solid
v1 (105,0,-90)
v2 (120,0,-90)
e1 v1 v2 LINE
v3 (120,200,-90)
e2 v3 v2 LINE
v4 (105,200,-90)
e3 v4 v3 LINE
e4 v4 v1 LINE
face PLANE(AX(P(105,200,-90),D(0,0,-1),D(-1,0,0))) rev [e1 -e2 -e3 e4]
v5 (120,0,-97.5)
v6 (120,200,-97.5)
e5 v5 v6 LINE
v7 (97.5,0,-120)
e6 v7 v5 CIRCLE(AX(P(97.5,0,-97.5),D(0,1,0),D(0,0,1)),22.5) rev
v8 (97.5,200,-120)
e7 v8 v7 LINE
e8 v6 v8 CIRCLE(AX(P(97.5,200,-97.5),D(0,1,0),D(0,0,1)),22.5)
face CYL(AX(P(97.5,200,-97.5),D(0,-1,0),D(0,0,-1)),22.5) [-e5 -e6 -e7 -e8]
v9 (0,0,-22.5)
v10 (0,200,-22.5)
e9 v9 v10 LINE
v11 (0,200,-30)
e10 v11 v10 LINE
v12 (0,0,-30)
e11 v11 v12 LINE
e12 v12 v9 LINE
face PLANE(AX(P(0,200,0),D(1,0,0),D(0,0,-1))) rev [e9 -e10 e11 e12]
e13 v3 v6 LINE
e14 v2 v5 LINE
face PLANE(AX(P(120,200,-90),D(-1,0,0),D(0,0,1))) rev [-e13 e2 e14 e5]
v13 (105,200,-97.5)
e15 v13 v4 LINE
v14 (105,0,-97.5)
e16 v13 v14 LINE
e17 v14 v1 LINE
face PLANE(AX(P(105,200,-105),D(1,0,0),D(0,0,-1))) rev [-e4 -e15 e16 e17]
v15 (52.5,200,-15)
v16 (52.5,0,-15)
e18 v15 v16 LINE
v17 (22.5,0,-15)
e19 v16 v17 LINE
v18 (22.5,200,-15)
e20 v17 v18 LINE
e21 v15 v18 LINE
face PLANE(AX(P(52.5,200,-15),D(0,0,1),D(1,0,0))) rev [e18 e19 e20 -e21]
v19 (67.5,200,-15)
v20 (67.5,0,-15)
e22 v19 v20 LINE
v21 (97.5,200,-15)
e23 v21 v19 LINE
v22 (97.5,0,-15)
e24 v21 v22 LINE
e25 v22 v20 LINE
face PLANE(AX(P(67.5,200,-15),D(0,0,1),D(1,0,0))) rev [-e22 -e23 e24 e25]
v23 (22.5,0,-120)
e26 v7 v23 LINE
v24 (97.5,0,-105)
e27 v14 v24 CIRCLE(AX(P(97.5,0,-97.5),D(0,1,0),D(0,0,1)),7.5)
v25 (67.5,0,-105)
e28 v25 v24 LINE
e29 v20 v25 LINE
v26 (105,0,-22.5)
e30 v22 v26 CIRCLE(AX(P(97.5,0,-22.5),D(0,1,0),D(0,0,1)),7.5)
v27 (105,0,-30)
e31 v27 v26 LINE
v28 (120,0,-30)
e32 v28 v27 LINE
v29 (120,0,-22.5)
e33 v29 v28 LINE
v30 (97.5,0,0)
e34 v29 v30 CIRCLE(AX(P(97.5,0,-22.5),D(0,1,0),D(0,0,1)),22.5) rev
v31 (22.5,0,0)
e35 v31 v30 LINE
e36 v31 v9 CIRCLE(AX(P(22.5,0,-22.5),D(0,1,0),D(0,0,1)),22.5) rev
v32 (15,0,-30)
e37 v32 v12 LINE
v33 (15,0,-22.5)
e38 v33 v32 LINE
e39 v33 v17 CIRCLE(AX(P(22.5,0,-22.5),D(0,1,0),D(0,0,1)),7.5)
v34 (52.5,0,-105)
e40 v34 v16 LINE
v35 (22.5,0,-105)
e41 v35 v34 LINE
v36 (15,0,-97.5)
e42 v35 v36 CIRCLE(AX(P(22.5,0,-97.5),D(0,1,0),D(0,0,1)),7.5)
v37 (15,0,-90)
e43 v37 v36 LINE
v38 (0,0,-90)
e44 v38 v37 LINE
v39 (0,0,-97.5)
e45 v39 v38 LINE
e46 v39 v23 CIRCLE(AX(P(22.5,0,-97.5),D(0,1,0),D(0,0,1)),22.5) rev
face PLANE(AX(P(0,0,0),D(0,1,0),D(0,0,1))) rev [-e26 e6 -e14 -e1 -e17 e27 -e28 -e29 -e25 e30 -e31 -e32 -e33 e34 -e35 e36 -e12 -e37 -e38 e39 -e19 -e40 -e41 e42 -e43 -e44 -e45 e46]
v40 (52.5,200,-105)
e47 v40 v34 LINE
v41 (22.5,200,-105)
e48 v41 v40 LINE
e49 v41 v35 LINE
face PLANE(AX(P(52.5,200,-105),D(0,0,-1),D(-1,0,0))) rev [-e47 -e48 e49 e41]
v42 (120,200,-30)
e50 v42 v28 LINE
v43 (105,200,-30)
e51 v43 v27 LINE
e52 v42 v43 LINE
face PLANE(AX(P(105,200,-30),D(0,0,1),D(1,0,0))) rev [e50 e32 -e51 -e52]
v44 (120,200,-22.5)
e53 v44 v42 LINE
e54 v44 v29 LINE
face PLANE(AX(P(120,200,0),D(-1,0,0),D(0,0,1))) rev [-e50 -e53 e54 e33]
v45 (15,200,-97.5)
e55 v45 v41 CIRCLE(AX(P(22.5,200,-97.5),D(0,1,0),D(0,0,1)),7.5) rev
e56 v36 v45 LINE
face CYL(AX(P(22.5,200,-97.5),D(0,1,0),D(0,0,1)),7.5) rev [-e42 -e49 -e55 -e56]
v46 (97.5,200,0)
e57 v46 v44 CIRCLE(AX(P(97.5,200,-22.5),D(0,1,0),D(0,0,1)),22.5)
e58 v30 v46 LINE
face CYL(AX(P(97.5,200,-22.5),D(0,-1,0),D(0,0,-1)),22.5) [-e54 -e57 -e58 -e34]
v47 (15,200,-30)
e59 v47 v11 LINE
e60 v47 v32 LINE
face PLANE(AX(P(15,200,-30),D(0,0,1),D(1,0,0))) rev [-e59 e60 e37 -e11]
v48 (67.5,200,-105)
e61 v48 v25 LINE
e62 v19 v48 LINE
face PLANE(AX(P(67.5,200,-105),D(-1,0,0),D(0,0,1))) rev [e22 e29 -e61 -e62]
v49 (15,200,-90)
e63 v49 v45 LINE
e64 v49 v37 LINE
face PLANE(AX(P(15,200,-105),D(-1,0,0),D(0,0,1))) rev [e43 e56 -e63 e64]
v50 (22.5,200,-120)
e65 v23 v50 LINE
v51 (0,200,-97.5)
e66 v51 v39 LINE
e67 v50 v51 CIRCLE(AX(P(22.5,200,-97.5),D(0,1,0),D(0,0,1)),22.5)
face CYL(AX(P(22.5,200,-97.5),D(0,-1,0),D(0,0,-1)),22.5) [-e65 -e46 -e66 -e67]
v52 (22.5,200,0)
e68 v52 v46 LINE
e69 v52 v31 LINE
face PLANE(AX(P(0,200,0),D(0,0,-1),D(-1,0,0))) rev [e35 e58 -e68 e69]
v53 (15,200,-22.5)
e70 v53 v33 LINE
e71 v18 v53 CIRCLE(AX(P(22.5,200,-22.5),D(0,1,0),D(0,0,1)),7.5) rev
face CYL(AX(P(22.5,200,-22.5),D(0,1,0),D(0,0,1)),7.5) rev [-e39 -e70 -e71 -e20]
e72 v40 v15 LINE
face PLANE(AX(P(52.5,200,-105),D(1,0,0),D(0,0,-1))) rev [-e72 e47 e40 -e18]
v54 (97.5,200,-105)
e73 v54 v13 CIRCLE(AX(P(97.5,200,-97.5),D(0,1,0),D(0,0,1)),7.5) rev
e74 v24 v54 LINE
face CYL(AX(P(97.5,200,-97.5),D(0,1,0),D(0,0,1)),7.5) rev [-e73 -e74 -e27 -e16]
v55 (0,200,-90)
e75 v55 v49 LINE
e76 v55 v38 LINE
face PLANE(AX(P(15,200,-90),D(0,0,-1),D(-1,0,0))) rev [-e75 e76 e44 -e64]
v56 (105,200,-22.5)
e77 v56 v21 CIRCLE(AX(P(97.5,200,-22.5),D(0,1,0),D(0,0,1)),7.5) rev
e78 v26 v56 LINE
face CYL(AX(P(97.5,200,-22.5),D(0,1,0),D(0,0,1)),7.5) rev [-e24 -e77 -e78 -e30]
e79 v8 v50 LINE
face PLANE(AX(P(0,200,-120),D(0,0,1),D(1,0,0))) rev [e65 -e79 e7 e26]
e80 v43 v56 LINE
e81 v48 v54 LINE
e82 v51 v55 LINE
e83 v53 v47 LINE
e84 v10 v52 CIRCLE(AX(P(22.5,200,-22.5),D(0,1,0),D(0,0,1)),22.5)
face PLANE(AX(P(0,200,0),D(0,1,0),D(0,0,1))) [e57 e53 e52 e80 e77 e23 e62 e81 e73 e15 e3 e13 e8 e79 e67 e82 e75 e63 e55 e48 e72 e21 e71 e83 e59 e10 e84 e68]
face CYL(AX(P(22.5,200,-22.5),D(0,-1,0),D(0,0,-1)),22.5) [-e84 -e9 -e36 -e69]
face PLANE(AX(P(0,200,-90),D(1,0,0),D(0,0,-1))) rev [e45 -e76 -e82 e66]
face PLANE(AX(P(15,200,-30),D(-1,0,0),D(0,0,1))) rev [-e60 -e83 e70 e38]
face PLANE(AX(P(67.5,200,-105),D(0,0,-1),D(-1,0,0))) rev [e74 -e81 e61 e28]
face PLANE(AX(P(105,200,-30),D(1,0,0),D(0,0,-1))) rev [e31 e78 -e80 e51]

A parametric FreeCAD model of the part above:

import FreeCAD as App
import Part
import Sketcher
from FreeCAD import Vector
Q = App.Units.Quantity


def edges_at(feature, points):
    """Names of the edges that pass closest to the given points."""
    edges = feature.Shape.Edges
    near = lambda p: min(range(len(edges)), key=lambda i: edges[i].distToShape(Part.Vertex(*p))[0])
    return sorted({f"Edge{near(p) + 1}" for p in points})

doc = App.newDocument("Part")
body = doc.addObject("PartDesign::Body", "Body")

# Sketch on XZ plane
sketch1 = body.newObject("Sketcher::SketchObject", "Sketch")
sketch1.AttachmentSupport = (doc.getObject("XZ_Plane"), [""])
sketch1.MapMode = "FlatFace"
sketch1.addGeometry([
    Part.LineSegment(Vector(0, 0, 0), Vector(120, 0, 0)),  # 0
    Part.LineSegment(Vector(120, 0, 0), Vector(120, -30, 0)),  # 1
    Part.LineSegment(Vector(120, -30, 0), Vector(105, -30, 0)),  # 2
    Part.LineSegment(Vector(105, -30, 0), Vector(105, -15, 0)),  # 3
    Part.LineSegment(Vector(105, -15, 0), Vector(67.5, -15, 0)),  # 4
    Part.LineSegment(Vector(67.5, -15, 0), Vector(67.5, -105, 0)),  # 5
    Part.LineSegment(Vector(67.5, -105, 0), Vector(105, -105, 0)),  # 6
    Part.LineSegment(Vector(105, -105, 0), Vector(105, -90, 0)),  # 7
    Part.LineSegment(Vector(105, -90, 0), Vector(120, -90, 0)),  # 8
    Part.LineSegment(Vector(120, -90, 0), Vector(120, -120, 0)),  # 9
    Part.LineSegment(Vector(120, -120, 0), Vector(0, -120, 0)),  # 10
    Part.LineSegment(Vector(0, -120, 0), Vector(0, -90, 0)),  # 11
    Part.LineSegment(Vector(0, -90, 0), Vector(15, -90, 0)),  # 12
    Part.LineSegment(Vector(15, -90, 0), Vector(15, -105, 0)),  # 13
    Part.LineSegment(Vector(15, -105, 0), Vector(52.5, -105, 0)),  # 14
    Part.LineSegment(Vector(52.5, -105, 0), Vector(52.5, -15, 0)),  # 15
    Part.LineSegment(Vector(52.5, -15, 0), Vector(15, -15, 0)),  # 16
    Part.LineSegment(Vector(15, -15, 0), Vector(15, -30, 0)),  # 17
    Part.LineSegment(Vector(15, -30, 0), Vector(0, -30, 0)),  # 18
    Part.LineSegment(Vector(0, -30, 0), Vector(0, 0, 0)),  # 19
], False)
sketch1.addConstraint([
    Sketcher.Constraint("Coincident", 0, 2, 1, 1),
    Sketcher.Constraint("Coincident", 1, 2, 2, 1),
    Sketcher.Constraint("Coincident", 2, 2, 3, 1),
    Sketcher.Constraint("Coincident", 3, 2, 4, 1),
    Sketcher.Constraint("Coincident", 4, 2, 5, 1),
    Sketcher.Constraint("Coincident", 5, 2, 6, 1),
    Sketcher.Constraint("Coincident", 6, 2, 7, 1),
    Sketcher.Constraint("Coincident", 7, 2, 8, 1),
    Sketcher.Constraint("Coincident", 8, 2, 9, 1),
    Sketcher.Constraint("Coincident", 9, 2, 10, 1),
    Sketcher.Constraint("Coincident", 10, 2, 11, 1),
    Sketcher.Constraint("Coincident", 11, 2, 12, 1),
    Sketcher.Constraint("Coincident", 12, 2, 13, 1),
    Sketcher.Constraint("Coincident", 13, 2, 14, 1),
    Sketcher.Constraint("Coincident", 14, 2, 15, 1),
    Sketcher.Constraint("Coincident", 15, 2, 16, 1),
    Sketcher.Constraint("Coincident", 16, 2, 17, 1),
    Sketcher.Constraint("Coincident", 17, 2, 18, 1),
    Sketcher.Constraint("Coincident", 18, 2, 19, 1),
    Sketcher.Constraint("Coincident", 19, 2, 0, 1),
    Sketcher.Constraint("Horizontal", 0),
    Sketcher.Constraint("Vertical", 1),
    Sketcher.Constraint("Horizontal", 2),
    Sketcher.Constraint("Vertical", 3),
    Sketcher.Constraint("Horizontal", 4),
    Sketcher.Constraint("Vertical", 5),
    Sketcher.Constraint("Horizontal", 6),
    Sketcher.Constraint("Vertical", 7),
    Sketcher.Constraint("Horizontal", 8),
    Sketcher.Constraint("Vertical", 9),
    Sketcher.Constraint("Horizontal", 10),
    Sketcher.Constraint("Vertical", 11),
    Sketcher.Constraint("Horizontal", 12),
    Sketcher.Constraint("Vertical", 13),
    Sketcher.Constraint("Horizontal", 14),
    Sketcher.Constraint("Vertical", 15),
    Sketcher.Constraint("Horizontal", 16),
    Sketcher.Constraint("Vertical", 17),
    Sketcher.Constraint("Horizontal", 18),
    Sketcher.Constraint("Vertical", 19),
    Sketcher.Constraint("Coincident", 19, 2, -1, 1),
    Sketcher.Constraint("PointOnObject", 10, 2, -2),
    Sketcher.Constraint("Horizontal", 8, 2, 11, 2),
    Sketcher.Constraint("Horizontal", 6, 2, 13, 2),
    Sketcher.Constraint("Horizontal", 4, 2, 15, 2),
    Sketcher.Constraint("Horizontal", 2, 2, 17, 2),
    Sketcher.Constraint("Vertical", 3, 2, 6, 2),
    Sketcher.Constraint("Vertical", 1, 2, 8, 2),
    Sketcher.Constraint("Vertical", 13, 2, 16, 2),
    Sketcher.Constraint("Equal", 8, 12),
    Sketcher.Constraint("Equal", 6, 14),
    Sketcher.Constraint("Equal", 18, 3),
    Sketcher.Constraint("Equal", 3, 7),
    Sketcher.Constraint("Equal", 1, 9),
    Sketcher.Constraint("DistanceX", 0, 1, 0, 2, Q("120 mm")),
    Sketcher.Constraint("DistanceX", 2, 2, 2, 1, Q("15 mm")),
    Sketcher.Constraint("DistanceY", 1, 2, 1, 1, Q("30 mm")),
    Sketcher.Constraint("DistanceY", 5, 2, 5, 1, Q("90 mm")),
    Sketcher.Constraint("DistanceX", 4, 2, 4, 1, Q("37.5 mm")),
])
pad1 = body.newObject("PartDesign::Pad", "Pad")
pad1.Profile = sketch1
pad1.Length = 200
pad1.Reversed = True
doc.recompute()

fillet = body.newObject("PartDesign::Fillet", "Fillet")
fillet.Base = (pad1, edges_at(pad1, [
    (0, 100, -120),
    (120, 100, -120),
    (120, 100, 0),
    (0, 100, 0),
]))
fillet.Radius = 22.5
doc.recompute()

fillet2 = body.newObject("PartDesign::Fillet", "Fillet001")
fillet2.Base = (fillet, edges_at(fillet, [
    (15, 100, -15),
    (15, 100, -105),
    (105, 100, -105),
    (105, 100, -15),
]))
fillet2.Radius = 7.5

doc.recompute()
